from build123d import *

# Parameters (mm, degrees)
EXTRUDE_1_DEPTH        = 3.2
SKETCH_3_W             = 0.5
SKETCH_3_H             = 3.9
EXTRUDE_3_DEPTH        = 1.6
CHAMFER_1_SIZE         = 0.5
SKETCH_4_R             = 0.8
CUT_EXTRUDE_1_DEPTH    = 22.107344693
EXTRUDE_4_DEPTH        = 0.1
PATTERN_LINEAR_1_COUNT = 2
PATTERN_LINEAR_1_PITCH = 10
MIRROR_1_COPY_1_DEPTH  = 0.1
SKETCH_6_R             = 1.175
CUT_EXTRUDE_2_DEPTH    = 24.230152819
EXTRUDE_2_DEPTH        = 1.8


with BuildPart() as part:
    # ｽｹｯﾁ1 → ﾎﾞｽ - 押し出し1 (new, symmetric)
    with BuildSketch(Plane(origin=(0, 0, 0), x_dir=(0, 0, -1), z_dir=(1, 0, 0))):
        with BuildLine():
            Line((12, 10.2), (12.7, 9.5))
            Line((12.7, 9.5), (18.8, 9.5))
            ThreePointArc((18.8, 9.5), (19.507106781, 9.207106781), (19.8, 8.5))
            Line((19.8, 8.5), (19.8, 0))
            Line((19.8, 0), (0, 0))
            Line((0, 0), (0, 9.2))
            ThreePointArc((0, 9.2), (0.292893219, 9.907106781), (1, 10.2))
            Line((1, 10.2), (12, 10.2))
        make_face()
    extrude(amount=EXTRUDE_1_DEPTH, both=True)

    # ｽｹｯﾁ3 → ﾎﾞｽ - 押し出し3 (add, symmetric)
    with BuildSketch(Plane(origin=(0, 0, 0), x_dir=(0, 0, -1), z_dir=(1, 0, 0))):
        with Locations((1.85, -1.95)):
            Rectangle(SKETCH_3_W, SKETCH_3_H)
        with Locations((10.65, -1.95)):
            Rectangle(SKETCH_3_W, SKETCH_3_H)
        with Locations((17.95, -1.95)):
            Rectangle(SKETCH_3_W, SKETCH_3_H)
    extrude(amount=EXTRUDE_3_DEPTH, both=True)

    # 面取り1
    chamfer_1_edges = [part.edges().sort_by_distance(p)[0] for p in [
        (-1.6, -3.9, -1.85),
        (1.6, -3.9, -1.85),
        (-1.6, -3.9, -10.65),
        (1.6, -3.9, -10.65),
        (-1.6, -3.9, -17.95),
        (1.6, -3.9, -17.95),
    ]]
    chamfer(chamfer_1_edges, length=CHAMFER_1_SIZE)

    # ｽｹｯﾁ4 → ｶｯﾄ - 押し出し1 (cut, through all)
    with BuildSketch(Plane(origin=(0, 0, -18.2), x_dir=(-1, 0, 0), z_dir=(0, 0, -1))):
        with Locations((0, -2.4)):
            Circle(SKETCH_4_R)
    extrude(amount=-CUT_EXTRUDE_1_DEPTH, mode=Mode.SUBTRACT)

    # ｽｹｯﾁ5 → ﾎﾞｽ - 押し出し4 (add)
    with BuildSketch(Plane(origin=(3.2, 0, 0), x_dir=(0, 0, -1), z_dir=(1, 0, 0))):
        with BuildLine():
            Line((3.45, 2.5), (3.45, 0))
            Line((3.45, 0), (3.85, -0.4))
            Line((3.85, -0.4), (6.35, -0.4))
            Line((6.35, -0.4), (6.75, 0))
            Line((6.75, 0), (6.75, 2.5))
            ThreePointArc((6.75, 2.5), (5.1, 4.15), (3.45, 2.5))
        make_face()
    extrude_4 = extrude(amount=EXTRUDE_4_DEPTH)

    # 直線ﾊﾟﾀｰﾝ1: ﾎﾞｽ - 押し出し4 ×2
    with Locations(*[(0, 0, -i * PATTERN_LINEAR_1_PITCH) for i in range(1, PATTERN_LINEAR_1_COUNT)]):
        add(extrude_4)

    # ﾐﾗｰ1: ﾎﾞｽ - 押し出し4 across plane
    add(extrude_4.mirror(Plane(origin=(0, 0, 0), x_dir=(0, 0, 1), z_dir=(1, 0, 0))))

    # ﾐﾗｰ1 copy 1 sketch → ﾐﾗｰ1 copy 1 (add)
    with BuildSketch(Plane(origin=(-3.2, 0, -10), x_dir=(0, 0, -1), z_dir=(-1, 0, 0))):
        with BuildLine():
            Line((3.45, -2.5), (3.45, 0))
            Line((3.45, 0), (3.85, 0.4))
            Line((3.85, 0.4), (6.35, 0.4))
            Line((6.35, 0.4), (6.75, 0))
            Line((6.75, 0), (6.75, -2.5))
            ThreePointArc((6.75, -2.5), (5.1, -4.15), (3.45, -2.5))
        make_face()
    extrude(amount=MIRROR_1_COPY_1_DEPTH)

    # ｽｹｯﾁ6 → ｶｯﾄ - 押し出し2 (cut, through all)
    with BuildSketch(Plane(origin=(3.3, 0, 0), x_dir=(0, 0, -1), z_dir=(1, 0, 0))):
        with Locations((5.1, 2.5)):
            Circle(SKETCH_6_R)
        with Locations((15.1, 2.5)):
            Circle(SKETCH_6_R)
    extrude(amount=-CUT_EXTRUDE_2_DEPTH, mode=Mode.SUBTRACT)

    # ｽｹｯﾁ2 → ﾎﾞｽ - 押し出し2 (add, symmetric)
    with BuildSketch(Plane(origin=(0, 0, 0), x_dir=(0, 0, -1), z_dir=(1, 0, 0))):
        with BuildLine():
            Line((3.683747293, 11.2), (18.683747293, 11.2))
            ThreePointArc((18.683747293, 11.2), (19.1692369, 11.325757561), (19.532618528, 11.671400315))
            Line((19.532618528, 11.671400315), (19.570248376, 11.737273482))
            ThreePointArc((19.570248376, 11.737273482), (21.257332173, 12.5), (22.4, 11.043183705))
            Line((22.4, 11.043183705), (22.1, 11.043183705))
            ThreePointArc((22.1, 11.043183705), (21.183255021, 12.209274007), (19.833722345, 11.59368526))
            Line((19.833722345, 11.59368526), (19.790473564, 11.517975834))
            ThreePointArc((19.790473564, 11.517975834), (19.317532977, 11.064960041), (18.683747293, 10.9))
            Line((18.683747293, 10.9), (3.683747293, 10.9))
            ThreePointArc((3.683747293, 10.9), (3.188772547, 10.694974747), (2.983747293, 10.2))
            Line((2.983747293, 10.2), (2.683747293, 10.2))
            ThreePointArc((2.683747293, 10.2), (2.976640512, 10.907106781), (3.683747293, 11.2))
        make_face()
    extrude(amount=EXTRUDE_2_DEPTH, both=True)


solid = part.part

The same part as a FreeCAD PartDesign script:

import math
import FreeCAD as App
import Part
import Sketcher
Q = App.Units.Quantity


def edges_at(feature, points):
    """Names of the edges that pass closest to the given points."""
    edges = feature.Shape.Edges
    near = lambda p: min(range(len(edges)), key=lambda i: edges[i].distToShape(Part.Vertex(*p))[0])
    return sorted({f"Edge{near(p) + 1}" for p in points})


def add_polygon(sketch, points):
    """Adds a closed chain of lines whose ends are joined by coincident constraints."""
    first, n = sketch.GeometryCount, len(points)
    for a, b in zip(points, points[1:] + points[:1]):
        sketch.addGeometry(Part.LineSegment(App.Vector(*a, 0), App.Vector(*b, 0)), False)
    for i in range(n):
        sketch.addConstraint(Sketcher.Constraint("Coincident", first + i, 2, first + (i + 1) % n, 1))

doc = App.newDocument("Part")
body = doc.addObject("PartDesign::Body", "Body")

sketch1 = body.newObject("Sketcher::SketchObject", "Sketch")
sketch1.AttachmentSupport = (doc.getObject("YZ_Plane"), [""])
sketch1.MapMode = "FlatFace"
sketch1.addGeometry(Part.LineSegment(App.Vector(9.5, -12.7, 0), App.Vector(10.2, -12, 0)), False)
sketch1.addGeometry(Part.LineSegment(App.Vector(10.2, -12, 0), App.Vector(10.2, -1, 0)), False)
sketch1.addGeometry(Part.ArcOfCircle(Part.Circle(App.Vector(9.2, -1, 0), App.Vector(0, 0, 1), 1), math.radians(0), math.radians(90)), False)
sketch1.addGeometry(Part.LineSegment(App.Vector(9.2, 0, 0), App.Vector(0, 0, 0)), False)
sketch1.addGeometry(Part.LineSegment(App.Vector(0, 0, 0), App.Vector(0, -19.8, 0)), False)
sketch1.addGeometry(Part.LineSegment(App.Vector(0, -19.8, 0), App.Vector(8.5, -19.8, 0)), False)
sketch1.addGeometry(Part.ArcOfCircle(Part.Circle(App.Vector(8.5, -18.8, 0), App.Vector(0, 0, 1), 1), math.radians(-90), math.radians(0)), False)
sketch1.addGeometry(Part.LineSegment(App.Vector(9.5, -18.8, 0), App.Vector(9.5, -12.7, 0)), False)
sketch1.addConstraint(Sketcher.Constraint("Coincident", 0, 2, 1, 1))
sketch1.addConstraint(Sketcher.Constraint("Tangent", 1, 2, 2, 1))
sketch1.addConstraint(Sketcher.Constraint("Tangent", 2, 2, 3, 1))
sketch1.addConstraint(Sketcher.Constraint("Coincident", 3, 2, 4, 1))
sketch1.addConstraint(Sketcher.Constraint("Coincident", 4, 2, 5, 1))
sketch1.addConstraint(Sketcher.Constraint("Tangent", 5, 2, 6, 1))
sketch1.addConstraint(Sketcher.Constraint("Tangent", 6, 2, 7, 1))
sketch1.addConstraint(Sketcher.Constraint("Coincident", 7, 2, 0, 1))
sketch1.addConstraint(Sketcher.Constraint("Vertical", 1))
sketch1.addConstraint(Sketcher.Constraint("Horizontal", 3))
sketch1.addConstraint(Sketcher.Constraint("Vertical", 4))
sketch1.addConstraint(Sketcher.Constraint("Horizontal", 5))
sketch1.addConstraint(Sketcher.Constraint("Vertical", 7))
sketch1.addConstraint(Sketcher.Constraint("Coincident", 3, 2, -1, 1))
sketch1.addConstraint(Sketcher.Constraint("Equal", 2, 6))
sketch1.addConstraint(Sketcher.Constraint("Radius", 2, Q("1 mm")))
sketch1.addConstraint(Sketcher.Constraint("DistanceY", 1, 1, 1, 2, Q("11 mm")))
sketch1.addConstraint(Sketcher.Constraint("Angle", 0, Q("45 deg")))
sketch1.addConstraint(Sketcher.Constraint("DistanceX", 3, 2, 3, 1, Q("9.2 mm")))
sketch1.addConstraint(Sketcher.Constraint("DistanceX", 5, 1, 5, 2, Q("8.5 mm")))
sketch1.addConstraint(Sketcher.Constraint("DistanceY", 4, 2, 4, 1, Q("19.8 mm")))
pad1 = body.newObject("PartDesign::Pad", "Pad")
pad1.Profile = sketch1
pad1.Length = 6.4
pad1.Midplane = True

sketch2 = body.newObject("Sketcher::SketchObject", "Sketch001")
sketch2.AttachmentSupport = (doc.getObject("YZ_Plane"), [""])
sketch2.MapMode = "FlatFace"
add_polygon(sketch2, [(0, -1.6), (-3.9, -1.6), (-3.9, -2.1), (0, -2.1)])
add_polygon(sketch2, [(0, -10.4), (-3.9, -10.4), (-3.9, -10.9), (0, -10.9)])
add_polygon(sketch2, [(0, -17.7), (-3.9, -17.7), (-3.9, -18.2), (0, -18.2)])
sketch2.addConstraint(Sketcher.Constraint("Horizontal", 0))
sketch2.addConstraint(Sketcher.Constraint("Vertical", 1))
sketch2.addConstraint(Sketcher.Constraint("Horizontal", 2))
sketch2.addConstraint(Sketcher.Constraint("Vertical", 3))
sketch2.addConstraint(Sketcher.Constraint("Horizontal", 4))
sketch2.addConstraint(Sketcher.Constraint("Vertical", 5))
sketch2.addConstraint(Sketcher.Constraint("Horizontal", 6))
sketch2.addConstraint(Sketcher.Constraint("Vertical", 7))
sketch2.addConstraint(Sketcher.Constraint("Horizontal", 8))
sketch2.addConstraint(Sketcher.Constraint("Vertical", 9))
sketch2.addConstraint(Sketcher.Constraint("Horizontal", 10))
sketch2.addConstraint(Sketcher.Constraint("Vertical", 11))
sketch2.addConstraint(Sketcher.Constraint("PointOnObject", 2, 2, -2))
sketch2.addConstraint(Sketcher.Constraint("PointOnObject", 6, 2, -2))
sketch2.addConstraint(Sketcher.Constraint("PointOnObject", 10, 2, -2))
sketch2.addConstraint(Sketcher.Constraint("Vertical", 1, 2, 4, 2))
sketch2.addConstraint(Sketcher.Constraint("Vertical", 5, 2, 8, 2))
sketch2.addConstraint(Sketcher.Constraint("Equal", 3, 5))
sketch2.addConstraint(Sketcher.Constraint("Equal", 7, 9))
sketch2.addConstraint(Sketcher.Constraint("DistanceX", 0, 2, 0, 1, Q("3.9 mm")))
sketch2.addConstraint(Sketcher.Constraint("DistanceY", 1, 2, 1, 1, Q("0.5 mm")))
sketch2.addConstraint(Sketcher.Constraint("DistanceY", 0, 2, -1, 1, Q("1.6 mm")))
sketch2.addConstraint(Sketcher.Constraint("DistanceY", 4, 2, -1, 1, Q("10.4 mm")))
sketch2.addConstraint(Sketcher.Constraint("DistanceY", 8, 2, -1, 1, Q("17.7 mm")))
pad2 = body.newObject("PartDesign::Pad", "Pad001")
pad2.Profile = sketch2
pad2.Length = 3.2
pad2.Midplane = True
doc.recompute()

chamfer = body.newObject("PartDesign::Chamfer", "Chamfer")
chamfer.Base = (pad2, edges_at(pad2, [
    (-1.6, -3.9, -1.85),
    (1.6, -3.9, -1.85),
    (-1.6, -3.9, -10.65),
    (1.6, -3.9, -10.65),
    (-1.6, -3.9, -17.95),
    (1.6, -3.9, -17.95),
]))
chamfer.Size = 0.5

sketch3 = body.newObject("Sketcher::SketchObject", "Sketch002")
sketch3.AttachmentSupport = (doc.getObject("XY_Plane"), [""])
sketch3.MapMode = "FlatFace"
sketch3.AttachmentOffset = App.Placement(App.Vector(0, 0, -18.2), App.Rotation())
sketch3.addGeometry(Part.Circle(App.Vector(0, -2.4, 0), App.Vector(0, 0, 1), 0.8), False)
sketch3.addConstraint(Sketcher.Constraint("PointOnObject", 0, 3, -2))
sketch3.addConstraint(Sketcher.Constraint("Diameter", 0, Q("1.6 mm")))
sketch3.addConstraint(Sketcher.Constraint("DistanceY", 0, 3, -1, 1, Q("2.4 mm")))
pocket1 = body.newObject("PartDesign::Pocket", "Pocket")
pocket1.Profile = sketch3
pocket1.Type = "ThroughAll"
pocket1.Reversed = True

sketch4 = body.newObject("Sketcher::SketchObject", "Sketch003")
sketch4.AttachmentSupport = (doc.getObject("YZ_Plane"), [""])
sketch4.MapMode = "FlatFace"
sketch4.AttachmentOffset = App.Placement(App.Vector(0, 0, 3.2), App.Rotation())
sketch4.addGeometry(Part.LineSegment(App.Vector(2.5, -3.5, 0), App.Vector(0, -3.5, 0)), False)
sketch4.addGeometry(Part.LineSegment(App.Vector(0, -3.5, 0), App.Vector(-0.4, -3.9, 0)), False)
sketch4.addGeometry(Part.LineSegment(App.Vector(-0.4, -3.9, 0), App.Vector(-0.4, -6.3, 0)), False)
sketch4.addGeometry(Part.LineSegment(App.Vector(-0.4, -6.3, 0), App.Vector(0, -6.8, 0)), False)
sketch4.addGeometry(Part.LineSegment(App.Vector(0, -6.8, 0), App.Vector(2.5, -6.8, 0)), False)
sketch4.addGeometry(Part.ArcOfCircle(Part.Circle(App.Vector(2.5, -5.1, 0), App.Vector(0, 0, 1), 1.6), math.radians(-90), math.radians(90)), False)
sketch4.addConstraint(Sketcher.Constraint("Coincident", 0, 2, 1, 1))
sketch4.addConstraint(Sketcher.Constraint("Coincident", 1, 2, 2, 1))
sketch4.addConstraint(Sketcher.Constraint("Coincident", 2, 2, 3, 1))
sketch4.addConstraint(Sketcher.Constraint("Coincident", 3, 2, 4, 1))
sketch4.addConstraint(Sketcher.Constraint("Tangent", 4, 2, 5, 1))
sketch4.addConstraint(Sketcher.Constraint("Tangent", 5, 2, 0, 1))
sketch4.addConstraint(Sketcher.Constraint("Horizontal", 0))
sketch4.addConstraint(Sketcher.Constraint("Vertical", 2))
sketch4.addConstraint(Sketcher.Constraint("Horizontal", 4))
sketch4.addConstraint(Sketcher.Constraint("PointOnObject", 0, 2, -2))
sketch4.addConstraint(Sketcher.Constraint("PointOnObject", 3, 2, -2))
sketch4.addConstraint(Sketcher.Constraint("Perpendicular", 1, 3))
sketch4.addConstraint(Sketcher.Constraint("Equal", 4, 2))
sketch4.addConstraint(Sketcher.Constraint("Equal", 1, 3))
sketch4.addConstraint(Sketcher.Constraint("Radius", 5, Q("1.65 mm")))
sketch4.addConstraint(Sketcher.Constraint("DistanceX", 0, 2, 0, 1, Q("2.5 mm")))
sketch4.addConstraint(Sketcher.Constraint("DistanceY", 5, 3, -1, 1, Q("5.1 mm")))
pad3 = body.newObject("PartDesign::Pad", "Pad002")
pad3.Profile = sketch4
pad3.Length = 0.1
doc.recompute()

linearpattern = body.newObject("PartDesign::LinearPattern", "LinearPattern")
linearpattern.Originals = [pad3]
linearpattern.Direction = (doc.getObject("Z_Axis"), [""])
linearpattern.Mode = "offset"
linearpattern.Offset = 10
linearpattern.Occurrences = 2
linearpattern.Reversed = True
body.Tip = linearpattern
doc.recompute()

mirrored = body.newObject("PartDesign::Mirrored", "Mirrored")
mirrored.Originals = [pad3]
mirrored.MirrorPlane = (doc.getObject("YZ_Plane"), [""])
body.Tip = mirrored

sketch5 = body.newObject("Sketcher::SketchObject", "Sketch004")
sketch5.AttachmentSupport = (doc.getObject("YZ_Plane"), [""])
sketch5.MapMode = "FlatFace"
sketch5.AttachmentOffset = App.Placement(App.Vector(0, 0, -3.2), App.Rotation())
sketch5.addGeometry(Part.LineSegment(App.Vector(0, -13.4, 0), App.Vector(2.5, -13.4, 0)), False)
sketch5.addGeometry(Part.ArcOfCircle(Part.Circle(App.Vector(2.5, -15.1, 0), App.Vector(0, 0, 1), 1.6), math.radians(-90), math.radians(90)), False)
sketch5.addGeometry(Part.LineSegment(App.Vector(2.5, -16.8, 0), App.Vector(0, -16.8, 0)), False)
sketch5.addGeometry(Part.LineSegment(App.Vector(0, -16.8, 0), App.Vector(-0.4, -16.4, 0)), False)
sketch5.addGeometry(Part.LineSegment(App.Vector(-0.4, -16.4, 0), App.Vector(-0.4, -13.8, 0)), False)
sketch5.addGeometry(Part.LineSegment(App.Vector(-0.4, -13.8, 0), App.Vector(0, -13.4, 0)), False)
sketch5.addConstraint(Sketcher.Constraint("Tangent", 0, 2, 1, 2))
sketch5.addConstraint(Sketcher.Constraint("Tangent", 1, 1, 2, 1))
sketch5.addConstraint(Sketcher.Constraint("Coincident", 2, 2, 3, 1))
sketch5.addConstraint(Sketcher.Constraint("Coincident", 3, 2, 4, 1))
sketch5.addConstraint(Sketcher.Constraint("Coincident", 4, 2, 5, 1))
sketch5.addConstraint(Sketcher.Constraint("Coincident", 5, 2, 0, 1))
sketch5.addConstraint(Sketcher.Constraint("Horizontal", 0))
sketch5.addConstraint(Sketcher.Constraint("Horizontal", 2))
sketch5.addConstraint(Sketcher.Constraint("Vertical", 4))
sketch5.addConstraint(Sketcher.Constraint("PointOnObject", 2, 2, -2))
sketch5.addConstraint(Sketcher.Constraint("PointOnObject", 5, 2, -2))
sketch5.addConstraint(Sketcher.Constraint("Perpendicular", 3, 5))
sketch5.addConstraint(Sketcher.Constraint("Equal", 2, 4))
sketch5.addConstraint(Sketcher.Constraint("Equal", 3, 5))
sketch5.addConstraint(Sketcher.Constraint("Radius", 1, Q("1.65 mm")))
sketch5.addConstraint(Sketcher.Constraint("DistanceX", 0, 1, 0, 2, Q("2.5 mm")))
sketch5.addConstraint(Sketcher.Constraint("DistanceY", 1, 3, -1, 1, Q("15.1 mm")))
pad4 = body.newObject("PartDesign::Pad", "Pad003")
pad4.Profile = sketch5
pad4.Length = 0.1
pad4.Reversed = True

sketch6 = body.newObject("Sketcher::SketchObject", "Sketch005")
sketch6.AttachmentSupport = (doc.getObject("YZ_Plane"), [""])
sketch6.MapMode = "FlatFace"
sketch6.AttachmentOffset = App.Placement(App.Vector(0, 0, 3.3), App.Rotation())
sketch6.addGeometry(Part.Circle(App.Vector(2.5, -5.1, 0), App.Vector(0, 0, 1), 1.2), False)
sketch6.addGeometry(Part.Circle(App.Vector(2.5, -15.1, 0), App.Vector(0, 0, 1), 1.2), False)
sketch6.addConstraint(Sketcher.Constraint("Equal", 0, 1))
sketch6.addConstraint(Sketcher.Constraint("Vertical", 0, 3, 1, 3))
sketch6.addConstraint(Sketcher.Constraint("Diameter", 0, Q("2.35 mm")))
sketch6.addConstraint(Sketcher.Constraint("DistanceY", 1, 3, 0, 3, Q("10 mm")))
sketch6.addConstraint(Sketcher.Constraint("DistanceX", -1, 1, 0, 3, Q("2.5 mm")))
sketch6.addConstraint(Sketcher.Constraint("DistanceY", 0, 3, -1, 1, Q("5.1 mm")))
pocket2 = body.newObject("PartDesign::Pocket", "Pocket001")
pocket2.Profile = sketch6
pocket2.Type = "ThroughAll"

sketch7 = body.newObject("Sketcher::SketchObject", "Sketch006")
sketch7.AttachmentSupport = (doc.getObject("YZ_Plane"), [""])
sketch7.MapMode = "FlatFace"
sketch7.addGeometry(Part.LineSegment(App.Vector(11.2, -18.68, 0), App.Vector(11.2, -3.68, 0)), False)
sketch7.addGeometry(Part.ArcOfCircle(Part.Circle(App.Vector(10.2, -3.68, 0), App.Vector(0, 0, 1), 1), math.radians(0), math.radians(90)), False)
sketch7.addGeometry(Part.LineSegment(App.Vector(10.2, -2.68, 0), App.Vector(10.2, -2.98, 0)), False)
sketch7.addGeometry(Part.ArcOfCircle(Part.Circle(App.Vector(10.2, -3.68, 0), App.Vector(0, 0, 1), 0.7), math.radians(0), math.radians(90)), False)
sketch7.addGeometry(Part.LineSegment(App.Vector(10.9, -3.68, 0), App.Vector(10.9, -18.68, 0)), False)
sketch7.addGeometry(Part.ArcOfCircle(Part.Circle(App.Vector(12.2, -18.68, 0), App.Vector(0, 0, 1), 1.3), math.radians(180), math.radians(238)), False)
sketch7.addGeometry(Part.LineSegment(App.Vector(11.52, -19.79, 0), App.Vector(11.59, -19.83, 0)), False)
sketch7.addGeometry(Part.ArcOfCircle(Part.Circle(App.Vector(11.04, -20.9, 0), App.Vector(0, 0, 1), 1.2), math.radians(-90), math.radians(63)), False)
sketch7.addGeometry(Part.LineSegment(App.Vector(11.04, -22.1, 0), App.Vector(11.04, -22.4, 0)), False)
sketch7.addGeometry(Part.ArcOfCircle(Part.Circle(App.Vector(11.04, -20.9, 0), App.Vector(0, 0, 1), 1.5), math.radians(-90), math.radians(62)), False)
sketch7.addGeometry(Part.LineSegment(App.Vector(11.74, -19.57, 0), App.Vector(11.67, -19.53, 0)), False)
sketch7.addGeometry(Part.ArcOfCircle(Part.Circle(App.Vector(12.2, -18.68, 0), App.Vector(0, 0, 1), 1), math.radians(180), math.radians(238)), False)
sketch7.addConstraint(Sketcher.Constraint("Tangent", 0, 2, 1, 1))
sketch7.addConstraint(Sketcher.Constraint("Coincident", 1, 2, 2, 1))
sketch7.addConstraint(Sketcher.Constraint("Coincident", 2, 2, 3, 2))
sketch7.addConstraint(Sketcher.Constraint("Tangent", 3, 1, 4, 1))
sketch7.addConstraint(Sketcher.Constraint("Tangent", 4, 2, 5, 1))
sketch7.addConstraint(Sketcher.Constraint("Coincident", 5, 2, 6, 1))
sketch7.addConstraint(Sketcher.Constraint("Coincident", 6, 2, 7, 2))
sketch7.addConstraint(Sketcher.Constraint("Coincident", 7, 1, 8, 1))
sketch7.addConstraint(Sketcher.Constraint("Coincident", 8, 2, 9, 1))
sketch7.addConstraint(Sketcher.Constraint("Coincident", 9, 2, 10, 1))
sketch7.addConstraint(Sketcher.Constraint("Coincident", 10, 2, 11, 2))
sketch7.addConstraint(Sketcher.Constraint("Tangent", 11, 1, 0, 1))
sketch7.addConstraint(Sketcher.Constraint("Vertical", 0))
sketch7.addConstraint(Sketcher.Constraint("Vertical", 2))
sketch7.addConstraint(Sketcher.Constraint("Vertical", 4))
sketch7.addConstraint(Sketcher.Constraint("Vertical", 8))
sketch7.addConstraint(Sketcher.Constraint("Coincident", 3, 3, 1, 3))
sketch7.addConstraint(Sketcher.Constraint("Coincident", 9, 3, 7, 3))
sketch7.addConstraint(Sketcher.Constraint("Coincident", 11, 3, 5, 3))
sketch7.addConstraint(Sketcher.Constraint("Equal", 1, 11))
sketch7.addConstraint(Sketcher.Constraint("Parallel", 6, 10))
sketch7.addConstraint(Sketcher.Constraint("Vertical", 3, 3, 1, 2))
sketch7.addConstraint(Sketcher.Constraint("Vertical", 9, 3, 7, 1))
sketch7.addConstraint(Sketcher.Constraint("Equal", 2, 8))
sketch7.addConstraint(Sketcher.Constraint("Radius", 1, Q("1 mm")))
sketch7.addConstraint(Sketcher.Constraint("Radius", 3, Q("0.7 mm")))
sketch7.addConstraint(Sketcher.Constraint("Radius", 7, Q("1.2 mm")))
sketch7.addConstraint(Sketcher.Constraint("DistanceY", 0, 1, 0, 2, Q("15 mm")))
sketch7.addConstraint(Sketcher.Constraint("DistanceX", -1, 1, 1, 3, Q("10.2 mm")))
sketch7.addConstraint(Sketcher.Constraint("DistanceY", 7, 3, -1, 1, Q("20.9 mm")))
sketch7.addConstraint(Sketcher.Constraint("DistanceX", -1, 1, 10, 2, Q("11.6714 mm")))
sketch7.addConstraint(Sketcher.Constraint("DistanceX", 7, 3, 6, 2, Q("0.550502 mm")))
sketch7.addConstraint(Sketcher.Constraint("DistanceY", 9, 2, 5, 3, Q("0.886501 mm")))
sketch7.addConstraint(Sketcher.Constraint("Distance", 6, Q("0.087192 mm")))
sketch7.addConstraint(Sketcher.Constraint("DistanceY", 9, 2, -1, 1, Q("19.570248 mm")))
pad5 = body.newObject("PartDesign::Pad", "Pad004")
pad5.Profile = sketch7
pad5.Length = 3.6
pad5.Midplane = True

doc.recompute()
